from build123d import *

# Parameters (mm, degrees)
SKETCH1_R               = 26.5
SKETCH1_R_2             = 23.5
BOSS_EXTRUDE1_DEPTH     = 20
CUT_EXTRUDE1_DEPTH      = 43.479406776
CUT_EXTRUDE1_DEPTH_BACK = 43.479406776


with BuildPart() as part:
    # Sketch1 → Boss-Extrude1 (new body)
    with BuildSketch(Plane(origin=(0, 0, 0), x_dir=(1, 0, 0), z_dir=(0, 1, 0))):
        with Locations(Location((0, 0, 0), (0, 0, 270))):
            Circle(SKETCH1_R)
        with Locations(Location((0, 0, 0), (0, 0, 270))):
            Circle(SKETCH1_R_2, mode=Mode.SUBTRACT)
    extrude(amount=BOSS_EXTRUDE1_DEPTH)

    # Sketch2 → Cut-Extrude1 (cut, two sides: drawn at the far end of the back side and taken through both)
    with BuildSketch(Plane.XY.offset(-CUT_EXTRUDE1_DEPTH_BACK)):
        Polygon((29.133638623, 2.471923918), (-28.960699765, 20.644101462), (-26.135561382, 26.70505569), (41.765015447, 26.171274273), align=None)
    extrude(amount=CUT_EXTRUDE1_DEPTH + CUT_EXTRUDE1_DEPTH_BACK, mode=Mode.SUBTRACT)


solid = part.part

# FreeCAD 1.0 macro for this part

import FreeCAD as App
import Part
import Sketcher


def add_polygon(sketch, points):
    """Adds a closed chain of lines whose ends are joined by coincident constraints."""
    first, n = sketch.GeometryCount, len(points)
    for a, b in zip(points, points[1:] + points[:1]):
        sketch.addGeometry(Part.LineSegment(App.Vector(*a, 0), App.Vector(*b, 0)), False)
    for i in range(n):
        sketch.addConstraint(Sketcher.Constraint("Coincident", first + i, 2, first + (i + 1) % n, 1))

doc = App.newDocument("Part")
params = doc.addObject("Spreadsheet::Sheet", "Params")
for row, (alias, value) in enumerate([
    ("sketch1_diameter", "53 mm"),
    ("sketch1_diameter2", "47 mm"),
    ("pad1_length", "20 mm"),
], start=1):
    params.set(f"A{row}", alias)
    params.set(f"B{row}", "=" + value)
    params.setAlias(f"B{row}", alias)

body = doc.addObject("PartDesign::Body", "Body")

# Sketch on XZ plane
sketch1 = body.newObject("Sketcher::SketchObject", "Sketch")
sketch1.AttachmentSupport = (doc.getObject("XZ_Plane"), [""])
sketch1.MapMode = "FlatFace"
sketch1.addGeometry(Part.Circle(App.Vector(0, 0, 0), App.Vector(0, 0, 1), 26), False)
sketch1.addGeometry(Part.Circle(App.Vector(0, 0, 0), App.Vector(0, 0, 1), 24), False)
sketch1.addConstraint(Sketcher.Constraint("Coincident", 0, 3, -1, 1))
sketch1.addConstraint(Sketcher.Constraint("Coincident", 1, 3, -1, 1))
sketch1.addConstraint(Sketcher.Constraint("Diameter", 0, 53.0))
sketch1.addConstraint(Sketcher.Constraint("Diameter", 1, 47.0))
sketch1.setExpression("Constraints[2]", "Params.sketch1_diameter")
sketch1.setExpression("Constraints[3]", "Params.sketch1_diameter2")
pad1 = body.newObject("PartDesign::Pad", "Pad")
pad1.Profile = sketch1
pad1.setExpression("Length", "Params.pad1_length")
pad1.Reversed = True

# Sketch on XY plane
sketch2 = body.newObject("Sketcher::SketchObject", "Sketch001")
sketch2.AttachmentSupport = (doc.getObject("XY_Plane"), [""])
sketch2.MapMode = "FlatFace"
add_polygon(sketch2, [(-29, 21), (29, 2), (42, 26), (-26, 27)])  # lines 0-3
sketch2.addConstraint(Sketcher.Constraint("DistanceX", 3, 2, -1, 1, 28.9607))
sketch2.addConstraint(Sketcher.Constraint("DistanceY", -1, 1, 3, 2, 20.644101))
sketch2.addConstraint(Sketcher.Constraint("DistanceX", 2, 2, 0, 2, 55.2692))
sketch2.addConstraint(Sketcher.Constraint("Distance", 0, 60.870191))
sketch2.addConstraint(Sketcher.Constraint("Distance", 1, 26.85537))
sketch2.addConstraint(Sketcher.Constraint("DistanceX", -1, 1, 0, 2, 29.133639))
sketch2.addConstraint(Sketcher.Constraint("DistanceY", 0, 2, 1, 2, 23.69935))
sketch2.addConstraint(Sketcher.Constraint("DistanceY", 0, 2, 2, 2, 24.233132))
pocket1 = body.newObject("PartDesign::Pocket", "Pocket")
pocket1.Profile = sketch2
pocket1.Type = "ThroughAll"
pocket1.Midplane = True

doc.recompute()
